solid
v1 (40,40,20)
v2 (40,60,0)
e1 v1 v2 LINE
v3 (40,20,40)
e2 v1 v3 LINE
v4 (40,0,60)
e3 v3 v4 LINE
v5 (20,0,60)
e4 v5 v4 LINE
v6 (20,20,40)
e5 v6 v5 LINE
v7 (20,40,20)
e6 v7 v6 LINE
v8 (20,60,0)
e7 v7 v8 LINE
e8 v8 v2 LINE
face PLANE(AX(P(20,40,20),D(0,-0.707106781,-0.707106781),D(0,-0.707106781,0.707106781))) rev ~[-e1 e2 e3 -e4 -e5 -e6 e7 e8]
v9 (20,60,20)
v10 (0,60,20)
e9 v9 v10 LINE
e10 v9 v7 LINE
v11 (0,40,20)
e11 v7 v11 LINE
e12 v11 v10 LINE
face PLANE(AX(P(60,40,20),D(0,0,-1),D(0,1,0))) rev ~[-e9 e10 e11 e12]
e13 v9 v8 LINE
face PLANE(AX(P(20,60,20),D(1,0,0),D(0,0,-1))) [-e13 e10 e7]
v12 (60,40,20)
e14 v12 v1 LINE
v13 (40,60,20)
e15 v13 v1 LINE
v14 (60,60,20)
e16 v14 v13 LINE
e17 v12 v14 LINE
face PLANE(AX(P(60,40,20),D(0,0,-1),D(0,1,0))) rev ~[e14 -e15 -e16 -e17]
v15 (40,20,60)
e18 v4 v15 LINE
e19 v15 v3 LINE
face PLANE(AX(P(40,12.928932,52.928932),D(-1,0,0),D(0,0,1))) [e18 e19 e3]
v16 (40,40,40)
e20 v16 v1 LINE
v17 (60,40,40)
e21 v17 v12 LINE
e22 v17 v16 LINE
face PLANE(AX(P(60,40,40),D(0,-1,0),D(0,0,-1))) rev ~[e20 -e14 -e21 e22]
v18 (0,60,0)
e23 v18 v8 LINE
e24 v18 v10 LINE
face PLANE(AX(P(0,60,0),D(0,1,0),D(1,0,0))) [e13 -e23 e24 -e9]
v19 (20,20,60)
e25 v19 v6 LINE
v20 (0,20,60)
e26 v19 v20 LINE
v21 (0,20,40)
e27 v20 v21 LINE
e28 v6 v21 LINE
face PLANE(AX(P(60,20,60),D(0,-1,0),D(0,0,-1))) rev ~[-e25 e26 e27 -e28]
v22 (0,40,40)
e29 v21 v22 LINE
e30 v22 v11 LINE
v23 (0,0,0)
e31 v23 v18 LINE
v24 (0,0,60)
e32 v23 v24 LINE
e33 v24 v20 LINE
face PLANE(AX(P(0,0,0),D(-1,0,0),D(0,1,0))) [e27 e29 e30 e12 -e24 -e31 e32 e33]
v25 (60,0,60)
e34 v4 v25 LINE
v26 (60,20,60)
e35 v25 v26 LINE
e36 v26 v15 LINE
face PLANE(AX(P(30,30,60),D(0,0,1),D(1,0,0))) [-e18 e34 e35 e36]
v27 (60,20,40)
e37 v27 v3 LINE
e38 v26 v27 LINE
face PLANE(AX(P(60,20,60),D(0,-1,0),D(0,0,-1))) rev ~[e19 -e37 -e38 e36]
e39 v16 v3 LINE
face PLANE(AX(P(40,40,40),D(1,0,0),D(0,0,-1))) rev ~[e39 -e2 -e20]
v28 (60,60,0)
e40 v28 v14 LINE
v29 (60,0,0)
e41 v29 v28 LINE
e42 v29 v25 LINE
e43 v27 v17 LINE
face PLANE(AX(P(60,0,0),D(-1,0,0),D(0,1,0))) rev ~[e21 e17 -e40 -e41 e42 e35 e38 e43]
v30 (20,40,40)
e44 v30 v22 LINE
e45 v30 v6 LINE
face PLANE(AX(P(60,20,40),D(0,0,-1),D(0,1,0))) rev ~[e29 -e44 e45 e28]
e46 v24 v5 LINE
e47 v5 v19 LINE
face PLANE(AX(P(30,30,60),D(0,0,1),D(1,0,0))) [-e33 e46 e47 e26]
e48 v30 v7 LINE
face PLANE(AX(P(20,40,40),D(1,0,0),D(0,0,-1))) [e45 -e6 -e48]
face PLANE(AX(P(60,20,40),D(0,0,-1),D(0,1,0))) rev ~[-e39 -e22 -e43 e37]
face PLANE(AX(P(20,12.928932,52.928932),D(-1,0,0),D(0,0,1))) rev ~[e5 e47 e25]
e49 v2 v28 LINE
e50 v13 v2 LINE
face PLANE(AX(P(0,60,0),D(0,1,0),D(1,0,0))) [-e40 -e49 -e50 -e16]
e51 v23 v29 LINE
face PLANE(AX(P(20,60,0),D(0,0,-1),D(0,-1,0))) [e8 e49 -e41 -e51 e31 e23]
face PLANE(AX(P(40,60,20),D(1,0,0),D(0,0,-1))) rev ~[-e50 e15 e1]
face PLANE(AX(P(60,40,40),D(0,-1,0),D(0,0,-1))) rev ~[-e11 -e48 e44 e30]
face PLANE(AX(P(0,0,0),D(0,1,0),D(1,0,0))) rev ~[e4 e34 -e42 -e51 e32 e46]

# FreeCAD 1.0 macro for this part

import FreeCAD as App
import Part
import Sketcher
from FreeCAD import Vector
Q = App.Units.Quantity

doc = App.newDocument("Part")
body = doc.addObject("PartDesign::Body", "Body")

sketch1 = doc.addObject("Sketcher::SketchObject", "Sketch")
body.addObject(sketch1)
sketch1.AttachmentSupport = (doc.XY_Plane, [""])
sketch1.MapMode = "FlatFace"
sketch1.addGeometry([
    Part.LineSegment(Vector(0, 60, 0), Vector(0, 0, 0)),
    Part.LineSegment(Vector(0, 0, 0), Vector(60, 0, 0)),
    Part.LineSegment(Vector(60, 0, 0), Vector(60, 60, 0)),
    Part.LineSegment(Vector(60, 60, 0), Vector(0, 60, 0)),
], False)
sketch1.addConstraint([
    Sketcher.Constraint("Coincident", 0, 2, 1, 1),
    Sketcher.Constraint("Coincident", 1, 2, 2, 1),
    Sketcher.Constraint("Coincident", 2, 2, 3, 1),
    Sketcher.Constraint("Coincident", 3, 2, 0, 1),
    Sketcher.Constraint("Vertical", 0),
    Sketcher.Constraint("Horizontal", 1),
    Sketcher.Constraint("Vertical", 2),
    Sketcher.Constraint("Horizontal", 3),
    Sketcher.Constraint("Coincident", 0, 2, -1, 1),
    Sketcher.Constraint("Equal", 3, 0),
    Sketcher.Constraint("DistanceX", 1, 1, 1, 2, Q("60 mm")),
])
pad1 = doc.addObject("PartDesign::Pad", "Pad")
body.addObject(pad1)
pad1.Profile = sketch1
pad1.Length = 60

sketch2 = doc.addObject("Sketcher::SketchObject", "Sketch001")
body.addObject(sketch2)
sketch2.AttachmentSupport = (doc.YZ_Plane, [""])
sketch2.MapMode = "FlatFace"
sketch2.AttachmentOffset = App.Placement(Vector(0, 0, 60), App.Rotation())
sketch2.addGeometry([
    Part.LineSegment(Vector(40, 20, 0), Vector(60, 20, 0)),
    Part.LineSegment(Vector(60, 20, 0), Vector(60, 60, 0)),
    Part.LineSegment(Vector(60, 60, 0), Vector(20, 60, 0)),
    Part.LineSegment(Vector(20, 60, 0), Vector(20, 40, 0)),
    Part.LineSegment(Vector(20, 40, 0), Vector(40, 40, 0)),
    Part.LineSegment(Vector(40, 40, 0), Vector(40, 20, 0)),
], False)
sketch2.addConstraint([
    Sketcher.Constraint("Coincident", 0, 2, 1, 1),
    Sketcher.Constraint("Coincident", 1, 2, 2, 1),
    Sketcher.Constraint("Coincident", 2, 2, 3, 1),
    Sketcher.Constraint("Coincident", 3, 2, 4, 1),
    Sketcher.Constraint("Coincident", 4, 2, 5, 1),
    Sketcher.Constraint("Coincident", 5, 2, 0, 1),
    Sketcher.Constraint("Horizontal", 0),
    Sketcher.Constraint("Vertical", 1),
    Sketcher.Constraint("Horizontal", 2),
    Sketcher.Constraint("Vertical", 3),
    Sketcher.Constraint("Horizontal", 4),
    Sketcher.Constraint("Vertical", 5),
    Sketcher.Constraint("Equal", 0, 4),
    Sketcher.Constraint("Equal", 2, 1),
    Sketcher.Constraint("Equal", 4, 3),
    Sketcher.Constraint("DistanceX", 0, 1, 0, 2, Q("20 mm")),
    Sketcher.Constraint("DistanceX", -1, 1, 0, 2, Q("60 mm")),
    Sketcher.Constraint("DistanceY", -1, 1, 0, 2, Q("20 mm")),
])
pocket1 = doc.addObject("PartDesign::Pocket", "Pocket")
body.addObject(pocket1)
pocket1.Profile = sketch2
pocket1.Length = 60

sketch3 = doc.addObject("Sketcher::SketchObject", "Sketch002")
body.addObject(sketch3)
sketch3.AttachmentSupport = (doc.XZ_Plane, [""])
sketch3.MapMode = "FlatFace"
sketch3.AttachmentOffset = App.Placement(Vector(0, 0, -60), App.Rotation())
sketch3.addGeometry([
    Part.LineSegment(Vector(20, 0, 0), Vector(20, 20, 0)),
    Part.LineSegment(Vector(20, 20, 0), Vector(40, 20, 0)),
    Part.LineSegment(Vector(40, 20, 0), Vector(40, 0, 0)),
    Part.LineSegment(Vector(40, 0, 0), Vector(20, 0, 0)),
], False)
sketch3.addConstraint([
    Sketcher.Constraint("Coincident", 0, 2, 1, 1),
    Sketcher.Constraint("Coincident", 1, 2, 2, 1),
    Sketcher.Constraint("Coincident", 2, 2, 3, 1),
    Sketcher.Constraint("Coincident", 3, 2, 0, 1),
    Sketcher.Constraint("Vertical", 0),
    Sketcher.Constraint("Horizontal", 1),
    Sketcher.Constraint("Vertical", 2),
    Sketcher.Constraint("Horizontal", 3),
    Sketcher.Constraint("PointOnObject", 2, 2, -1),
    Sketcher.Constraint("Equal", 3, 0),
    Sketcher.Constraint("DistanceX", 1, 1, 1, 2, Q("20 mm")),
    Sketcher.Constraint("DistanceX", -1, 1, 0, 2, Q("20 mm")),
])
pocket2 = doc.addObject("PartDesign::Pocket", "Pocket001")
body.addObject(pocket2)
pocket2.Profile = sketch3
pocket2.Length = 20
pocket2.Reversed = True

sketch4 = doc.addObject("Sketcher::SketchObject", "Sketch003")
body.addObject(sketch4)
sketch4.AttachmentSupport = (doc.YZ_Plane, [""])
sketch4.MapMode = "FlatFace"
sketch4.AttachmentOffset = App.Placement(Vector(0, 0, 20), App.Rotation())
sketch4.addGeometry([
    Part.LineSegment(Vector(40, 0, 0), Vector(60, 0, 0)),
    Part.LineSegment(Vector(60, 0, 0), Vector(40, 20, 0)),
    Part.LineSegment(Vector(40, 20, 0), Vector(40, 0, 0)),
], False)
sketch4.addConstraint([
    Sketcher.Constraint("Coincident", 0, 2, 1, 1),
    Sketcher.Constraint("Coincident", 1, 2, 2, 1),
    Sketcher.Constraint("Coincident", 2, 2, 0, 1),
    Sketcher.Constraint("Horizontal", 0),
    Sketcher.Constraint("Vertical", 2),
    Sketcher.Constraint("PointOnObject", 0, 2, -1),
    Sketcher.Constraint("Equal", 0, 2),
    Sketcher.Constraint("DistanceX", 0, 1, 0, 2, Q("20 mm")),
    Sketcher.Constraint("DistanceX", -1, 1, 0, 2, Q("60 mm")),
])
pad2 = doc.addObject("PartDesign::Pad", "Pad001")
body.addObject(pad2)
pad2.Profile = sketch4
pad2.Length = 20

sketch5 = doc.addObject("Sketcher::SketchObject", "Sketch004")
body.addObject(sketch5)
sketch5.AttachmentSupport = (doc.XZ_Plane, [""])
sketch5.MapMode = "FlatFace"
sketch5.AttachmentOffset = App.Placement(Vector(0, 0, -40), App.Rotation())
sketch5.addGeometry([
    Part.LineSegment(Vector(20, 20, 0), Vector(20, 40, 0)),
    Part.LineSegment(Vector(20, 40, 0), Vector(40, 40, 0)),
    Part.LineSegment(Vector(40, 40, 0), Vector(40, 20, 0)),
    Part.LineSegment(Vector(40, 20, 0), Vector(20, 20, 0)),
], False)
sketch5.addConstraint([
    Sketcher.Constraint("Coincident", 0, 2, 1, 1),
    Sketcher.Constraint("Coincident", 1, 2, 2, 1),
    Sketcher.Constraint("Coincident", 2, 2, 3, 1),
    Sketcher.Constraint("Coincident", 3, 2, 0, 1),
    Sketcher.Constraint("Vertical", 0),
    Sketcher.Constraint("Horizontal", 1),
    Sketcher.Constraint("Vertical", 2),
    Sketcher.Constraint("Horizontal", 3),
    Sketcher.Constraint("Equal", 3, 0),
    Sketcher.Constraint("DistanceX", 1, 1, 1, 2, Q("20 mm")),
    Sketcher.Constraint("DistanceX", -1, 1, 0, 2, Q("20 mm")),
    Sketcher.Constraint("DistanceY", -1, 1, 0, 2, Q("40 mm")),
])
pocket3 = doc.addObject("PartDesign::Pocket", "Pocket002")
body.addObject(pocket3)
pocket3.Profile = sketch5
pocket3.Length = 20
pocket3.Reversed = True

sketch6 = doc.addObject("Sketcher::SketchObject", "Sketch005")
body.addObject(sketch6)
sketch6.AttachmentSupport = (doc.YZ_Plane, [""])
sketch6.MapMode = "FlatFace"
sketch6.AttachmentOffset = App.Placement(Vector(0, 0, 20), App.Rotation())
sketch6.addGeometry([
    Part.LineSegment(Vector(40, 20, 0), Vector(20, 40, 0)),
    Part.LineSegment(Vector(20, 40, 0), Vector(20, 20, 0)),
    Part.LineSegment(Vector(20, 20, 0), Vector(40, 20, 0)),
], False)
sketch6.addConstraint([
    Sketcher.Constraint("Coincident", 0, 2, 1, 1),
    Sketcher.Constraint("Coincident", 1, 2, 2, 1),
    Sketcher.Constraint("Coincident", 2, 2, 0, 1),
    Sketcher.Constraint("Vertical", 1),
    Sketcher.Constraint("Horizontal", 2),
    Sketcher.Constraint("Equal", 2, 1),
    Sketcher.Constraint("DistanceX", 2, 1, 2, 2, Q("20 mm")),
    Sketcher.Constraint("DistanceX", -1, 1, 0, 2, Q("20 mm")),
    Sketcher.Constraint("DistanceY", -1, 1, 0, 2, Q("40 mm")),
])
pad3 = doc.addObject("PartDesign::Pad", "Pad002")
body.addObject(pad3)
pad3.Profile = sketch6
pad3.Length = 20

sketch7 = doc.addObject("Sketcher::SketchObject", "Sketch006")
body.addObject(sketch7)
sketch7.AttachmentSupport = (doc.YZ_Plane, [""])
sketch7.MapMode = "FlatFace"
sketch7.AttachmentOffset = App.Placement(Vector(0, 0, 20), App.Rotation())
sketch7.addGeometry([
    Part.LineSegment(Vector(0, 60, 0), Vector(20, 40, 0)),
    Part.LineSegment(Vector(20, 40, 0), Vector(20, 60, 0)),
    Part.LineSegment(Vector(20, 60, 0), Vector(0, 60, 0)),
], False)
sketch7.addConstraint([
    Sketcher.Constraint("Coincident", 0, 2, 1, 1),
    Sketcher.Constraint("Coincident", 1, 2, 2, 1),
    Sketcher.Constraint("Coincident", 2, 2, 0, 1),
    Sketcher.Constraint("Vertical", 1),
    Sketcher.Constraint("Horizontal", 2),
    Sketcher.Constraint("PointOnObject", 2, 2, -2),
    Sketcher.Constraint("Equal", 2, 1),
    Sketcher.Constraint("DistanceX", 2, 2, 2, 1, Q("20 mm")),
    Sketcher.Constraint("DistanceY", -1, 1, 0, 2, Q("40 mm")),
])
pocket4 = doc.addObject("PartDesign::Pocket", "Pocket003")
body.addObject(pocket4)
pocket4.Profile = sketch7
pocket4.Length = 20
pocket4.Reversed = True

doc.recompute()
